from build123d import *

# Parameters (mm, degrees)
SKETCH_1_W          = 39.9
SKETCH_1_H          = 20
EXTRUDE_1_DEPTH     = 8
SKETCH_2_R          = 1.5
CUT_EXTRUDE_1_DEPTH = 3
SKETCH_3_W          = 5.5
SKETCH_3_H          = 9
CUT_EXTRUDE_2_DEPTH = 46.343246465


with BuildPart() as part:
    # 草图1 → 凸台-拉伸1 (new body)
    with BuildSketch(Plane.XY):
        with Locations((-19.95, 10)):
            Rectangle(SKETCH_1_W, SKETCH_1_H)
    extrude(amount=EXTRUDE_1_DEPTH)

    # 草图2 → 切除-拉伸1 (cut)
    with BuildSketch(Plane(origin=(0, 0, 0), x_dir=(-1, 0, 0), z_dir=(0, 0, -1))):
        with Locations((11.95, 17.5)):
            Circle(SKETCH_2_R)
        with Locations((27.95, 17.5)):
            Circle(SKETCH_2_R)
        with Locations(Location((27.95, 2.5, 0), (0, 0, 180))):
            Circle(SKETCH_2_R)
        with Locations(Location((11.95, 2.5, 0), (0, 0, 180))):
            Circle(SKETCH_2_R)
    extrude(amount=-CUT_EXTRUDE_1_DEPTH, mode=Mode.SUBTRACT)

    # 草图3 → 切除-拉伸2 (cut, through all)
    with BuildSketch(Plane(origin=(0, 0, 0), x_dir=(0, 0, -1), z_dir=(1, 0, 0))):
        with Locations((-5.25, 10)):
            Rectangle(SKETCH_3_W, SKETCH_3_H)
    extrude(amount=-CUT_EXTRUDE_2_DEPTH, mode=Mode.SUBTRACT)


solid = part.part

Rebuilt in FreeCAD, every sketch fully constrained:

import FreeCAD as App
import Part
import Sketcher
Q = App.Units.Quantity

doc = App.newDocument("Part")
params = doc.addObject("Spreadsheet::Sheet", "Params")
for row, (alias, value) in enumerate([
    ("sketch1_height", "20 mm"),
    ("sketch1_width", "39.9 mm"),
    ("pad1_length", "8 mm"),
    ("sketch2_diameter", "3 mm"),
    ("pocket1_length", "3 mm"),
    ("sketch3_width", "9 mm"),
    ("sketch3_height", "5.5 mm"),
], start=1):
    params.set(f"A{row}", alias)
    params.set(f"B{row}", "=" + value)
    params.setAlias(f"B{row}", alias)

body = doc.addObject("PartDesign::Body", "Body")

# Sketch on XY plane
sketch1 = doc.addObject("Sketcher::SketchObject", "Sketch")
body.addObject(sketch1)
sketch1.AttachmentSupport = (doc.XY_Plane, [""])
sketch1.MapMode = "FlatFace"
sketch1.addGeometry(Part.LineSegment(App.Vector(-40, 20, 0), App.Vector(-40, 0, 0)), False)
sketch1.addGeometry(Part.LineSegment(App.Vector(-40, 0, 0), App.Vector(0, 0, 0)), False)
sketch1.addGeometry(Part.LineSegment(App.Vector(0, 0, 0), App.Vector(0, 20, 0)), False)
sketch1.addGeometry(Part.LineSegment(App.Vector(0, 20, 0), App.Vector(-40, 20, 0)), False)
sketch1.addConstraint(Sketcher.Constraint("Coincident", 0, 2, 1, 1))
sketch1.addConstraint(Sketcher.Constraint("Coincident", 1, 2, 2, 1))
sketch1.addConstraint(Sketcher.Constraint("Coincident", 2, 2, 3, 1))
sketch1.addConstraint(Sketcher.Constraint("Coincident", 3, 2, 0, 1))
sketch1.addConstraint(Sketcher.Constraint("Vertical", 0))
sketch1.addConstraint(Sketcher.Constraint("Horizontal", 1))
sketch1.addConstraint(Sketcher.Constraint("Vertical", 2))
sketch1.addConstraint(Sketcher.Constraint("Horizontal", 3))
sketch1.addConstraint(Sketcher.Constraint("Coincident", 1, 2, -1, 1))
sketch1.addConstraint(Sketcher.Constraint("DistanceY", 0, 2, 0, 1, Q("20 mm")))
sketch1.addConstraint(Sketcher.Constraint("DistanceX", 1, 1, 1, 2, Q("39.9 mm")))
sketch1.setExpression("Constraints[9]", "Params.sketch1_height")
sketch1.setExpression("Constraints[10]", "Params.sketch1_width")
pad1 = doc.addObject("PartDesign::Pad", "Pad")
body.addObject(pad1)
pad1.Profile = sketch1
pad1.setExpression("Length", "Params.pad1_length")

# Sketch on XY plane
sketch2 = doc.addObject("Sketcher::SketchObject", "Sketch001")
body.addObject(sketch2)
sketch2.AttachmentSupport = (doc.XY_Plane, [""])
sketch2.MapMode = "FlatFace"
sketch2.addGeometry(Part.Circle(App.Vector(-11.9, 17.5, 0), App.Vector(0, 0, 1), 1.5), False)
sketch2.addGeometry(Part.Circle(App.Vector(-27.9, 17.5, 0), App.Vector(0, 0, 1), 1.5), False)
sketch2.addGeometry(Part.Circle(App.Vector(-27.9, 2.5, 0), App.Vector(0, 0, 1), 1.5), False)
sketch2.addGeometry(Part.Circle(App.Vector(-11.9, 2.5, 0), App.Vector(0, 0, 1), 1.5), False)
sketch2.addConstraint(Sketcher.Constraint("Equal", 0, 1))
sketch2.addConstraint(Sketcher.Constraint("Equal", 1, 2))
sketch2.addConstraint(Sketcher.Constraint("Equal", 2, 3))
sketch2.addConstraint(Sketcher.Constraint("Horizontal", 0, 3, 1, 3))
sketch2.addConstraint(Sketcher.Constraint("Horizontal", 2, 3, 3, 3))
sketch2.addConstraint(Sketcher.Constraint("Vertical", 1, 3, 2, 3))
sketch2.addConstraint(Sketcher.Constraint("Vertical", 0, 3, 3, 3))
sketch2.addConstraint(Sketcher.Constraint("Diameter", 0, Q("3 mm")))
sketch2.addConstraint(Sketcher.Constraint("DistanceX", 1, 3, 0, 3, Q("16 mm")))
sketch2.addConstraint(Sketcher.Constraint("DistanceY", 2, 3, 1, 3, Q("15 mm")))
sketch2.addConstraint(Sketcher.Constraint("DistanceY", -1, 1, 0, 3, Q("17.5 mm")))
sketch2.addConstraint(Sketcher.Constraint("DistanceX", 0, 3, -1, 1, Q("11.95 mm")))
sketch2.setExpression("Constraints[7]", "Params.sketch2_diameter")
pocket1 = doc.addObject("PartDesign::Pocket", "Pocket")
body.addObject(pocket1)
pocket1.Profile = sketch2
pocket1.setExpression("Length", "Params.pocket1_length")
pocket1.Reversed = True

# Sketch on YZ plane
sketch3 = doc.addObject("Sketcher::SketchObject", "Sketch002")
body.addObject(sketch3)
sketch3.AttachmentSupport = (doc.YZ_Plane, [""])
sketch3.MapMode = "FlatFace"
sketch3.addGeometry(Part.LineSegment(App.Vector(14, 8, 0), App.Vector(6, 8, 0)), False)
sketch3.addGeometry(Part.LineSegment(App.Vector(6, 8, 0), App.Vector(6, 2, 0)), False)
sketch3.addGeometry(Part.LineSegment(App.Vector(6, 2, 0), App.Vector(14, 2, 0)), False)
sketch3.addGeometry(Part.LineSegment(App.Vector(14, 2, 0), App.Vector(14, 8, 0)), False)
sketch3.addConstraint(Sketcher.Constraint("Coincident", 0, 2, 1, 1))
sketch3.addConstraint(Sketcher.Constraint("Coincident", 1, 2, 2, 1))
sketch3.addConstraint(Sketcher.Constraint("Coincident", 2, 2, 3, 1))
sketch3.addConstraint(Sketcher.Constraint("Coincident", 3, 2, 0, 1))
sketch3.addConstraint(Sketcher.Constraint("Horizontal", 0))
sketch3.addConstraint(Sketcher.Constraint("Vertical", 1))
sketch3.addConstraint(Sketcher.Constraint("Horizontal", 2))
sketch3.addConstraint(Sketcher.Constraint("Vertical", 3))
sketch3.addConstraint(Sketcher.Constraint("DistanceX", 0, 2, 0, 1, Q("9 mm")))
sketch3.addConstraint(Sketcher.Constraint("DistanceY", 1, 2, 1, 1, Q("5.5 mm")))
sketch3.addConstraint(Sketcher.Constraint("DistanceY", -1, 1, 0, 2, Q("8 mm")))
sketch3.addConstraint(Sketcher.Constraint("DistanceX", -1, 1, 0, 2, Q("5.5 mm")))
sketch3.setExpression("Constraints[8]", "Params.sketch3_width")
sketch3.setExpression("Constraints[9]", "Params.sketch3_height")
pocket2 = doc.addObject("PartDesign::Pocket", "Pocket001")
body.addObject(pocket2)
pocket2.Profile = sketch3
pocket2.Type = "ThroughAll"

doc.recompute()
